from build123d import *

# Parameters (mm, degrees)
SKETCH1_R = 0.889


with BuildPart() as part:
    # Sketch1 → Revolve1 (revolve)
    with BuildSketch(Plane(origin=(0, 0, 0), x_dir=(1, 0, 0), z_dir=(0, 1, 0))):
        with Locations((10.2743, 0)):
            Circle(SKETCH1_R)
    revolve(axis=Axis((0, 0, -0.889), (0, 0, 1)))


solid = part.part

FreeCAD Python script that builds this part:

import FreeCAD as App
import Part
import Sketcher

V = App.Vector
Q = App.Units.Quantity

doc = App.newDocument("Part")
params = doc.addObject("Spreadsheet::Sheet", "Params")
for row, (alias, value) in enumerate([
    ("sketch1_diameter", "0.07 in"),
    ("revolution_angle", "360 deg"),
], start=1):
    params.set(f"A{row}", alias)
    params.set(f"B{row}", "=" + value)
    params.setAlias(f"B{row}", alias)

body = doc.addObject("PartDesign::Body", "Body")

# Sketch on XZ plane
sketch1 = body.newObject("Sketcher::SketchObject", "Sketch")
sketch1.AttachmentSupport = (doc.getObject("XZ_Plane"), [""])
sketch1.MapMode = "FlatFace"
sketch1.addGeometry(Part.Circle(V(10.3, 0, 0), V(0, 0, 1), 0.9), False)
sketch1.addConstraint([
    Sketcher.Constraint("PointOnObject", 0, 3, -1),
    Sketcher.Constraint("Diameter", 0, Q("0.07 in")),
    Sketcher.Constraint("DistanceX", -1, 1, 0, 3, Q("0.4045 in")),
])
sketch1.setExpression("Constraints[1]", "Params.sketch1_diameter")
revolution = body.newObject("PartDesign::Revolution", "Revolution")
revolution.Profile = sketch1
revolution.ReferenceAxis = (sketch1, ["V_Axis"])
revolution.setExpression("Angle", "Params.revolution_angle")

doc.recompute()
